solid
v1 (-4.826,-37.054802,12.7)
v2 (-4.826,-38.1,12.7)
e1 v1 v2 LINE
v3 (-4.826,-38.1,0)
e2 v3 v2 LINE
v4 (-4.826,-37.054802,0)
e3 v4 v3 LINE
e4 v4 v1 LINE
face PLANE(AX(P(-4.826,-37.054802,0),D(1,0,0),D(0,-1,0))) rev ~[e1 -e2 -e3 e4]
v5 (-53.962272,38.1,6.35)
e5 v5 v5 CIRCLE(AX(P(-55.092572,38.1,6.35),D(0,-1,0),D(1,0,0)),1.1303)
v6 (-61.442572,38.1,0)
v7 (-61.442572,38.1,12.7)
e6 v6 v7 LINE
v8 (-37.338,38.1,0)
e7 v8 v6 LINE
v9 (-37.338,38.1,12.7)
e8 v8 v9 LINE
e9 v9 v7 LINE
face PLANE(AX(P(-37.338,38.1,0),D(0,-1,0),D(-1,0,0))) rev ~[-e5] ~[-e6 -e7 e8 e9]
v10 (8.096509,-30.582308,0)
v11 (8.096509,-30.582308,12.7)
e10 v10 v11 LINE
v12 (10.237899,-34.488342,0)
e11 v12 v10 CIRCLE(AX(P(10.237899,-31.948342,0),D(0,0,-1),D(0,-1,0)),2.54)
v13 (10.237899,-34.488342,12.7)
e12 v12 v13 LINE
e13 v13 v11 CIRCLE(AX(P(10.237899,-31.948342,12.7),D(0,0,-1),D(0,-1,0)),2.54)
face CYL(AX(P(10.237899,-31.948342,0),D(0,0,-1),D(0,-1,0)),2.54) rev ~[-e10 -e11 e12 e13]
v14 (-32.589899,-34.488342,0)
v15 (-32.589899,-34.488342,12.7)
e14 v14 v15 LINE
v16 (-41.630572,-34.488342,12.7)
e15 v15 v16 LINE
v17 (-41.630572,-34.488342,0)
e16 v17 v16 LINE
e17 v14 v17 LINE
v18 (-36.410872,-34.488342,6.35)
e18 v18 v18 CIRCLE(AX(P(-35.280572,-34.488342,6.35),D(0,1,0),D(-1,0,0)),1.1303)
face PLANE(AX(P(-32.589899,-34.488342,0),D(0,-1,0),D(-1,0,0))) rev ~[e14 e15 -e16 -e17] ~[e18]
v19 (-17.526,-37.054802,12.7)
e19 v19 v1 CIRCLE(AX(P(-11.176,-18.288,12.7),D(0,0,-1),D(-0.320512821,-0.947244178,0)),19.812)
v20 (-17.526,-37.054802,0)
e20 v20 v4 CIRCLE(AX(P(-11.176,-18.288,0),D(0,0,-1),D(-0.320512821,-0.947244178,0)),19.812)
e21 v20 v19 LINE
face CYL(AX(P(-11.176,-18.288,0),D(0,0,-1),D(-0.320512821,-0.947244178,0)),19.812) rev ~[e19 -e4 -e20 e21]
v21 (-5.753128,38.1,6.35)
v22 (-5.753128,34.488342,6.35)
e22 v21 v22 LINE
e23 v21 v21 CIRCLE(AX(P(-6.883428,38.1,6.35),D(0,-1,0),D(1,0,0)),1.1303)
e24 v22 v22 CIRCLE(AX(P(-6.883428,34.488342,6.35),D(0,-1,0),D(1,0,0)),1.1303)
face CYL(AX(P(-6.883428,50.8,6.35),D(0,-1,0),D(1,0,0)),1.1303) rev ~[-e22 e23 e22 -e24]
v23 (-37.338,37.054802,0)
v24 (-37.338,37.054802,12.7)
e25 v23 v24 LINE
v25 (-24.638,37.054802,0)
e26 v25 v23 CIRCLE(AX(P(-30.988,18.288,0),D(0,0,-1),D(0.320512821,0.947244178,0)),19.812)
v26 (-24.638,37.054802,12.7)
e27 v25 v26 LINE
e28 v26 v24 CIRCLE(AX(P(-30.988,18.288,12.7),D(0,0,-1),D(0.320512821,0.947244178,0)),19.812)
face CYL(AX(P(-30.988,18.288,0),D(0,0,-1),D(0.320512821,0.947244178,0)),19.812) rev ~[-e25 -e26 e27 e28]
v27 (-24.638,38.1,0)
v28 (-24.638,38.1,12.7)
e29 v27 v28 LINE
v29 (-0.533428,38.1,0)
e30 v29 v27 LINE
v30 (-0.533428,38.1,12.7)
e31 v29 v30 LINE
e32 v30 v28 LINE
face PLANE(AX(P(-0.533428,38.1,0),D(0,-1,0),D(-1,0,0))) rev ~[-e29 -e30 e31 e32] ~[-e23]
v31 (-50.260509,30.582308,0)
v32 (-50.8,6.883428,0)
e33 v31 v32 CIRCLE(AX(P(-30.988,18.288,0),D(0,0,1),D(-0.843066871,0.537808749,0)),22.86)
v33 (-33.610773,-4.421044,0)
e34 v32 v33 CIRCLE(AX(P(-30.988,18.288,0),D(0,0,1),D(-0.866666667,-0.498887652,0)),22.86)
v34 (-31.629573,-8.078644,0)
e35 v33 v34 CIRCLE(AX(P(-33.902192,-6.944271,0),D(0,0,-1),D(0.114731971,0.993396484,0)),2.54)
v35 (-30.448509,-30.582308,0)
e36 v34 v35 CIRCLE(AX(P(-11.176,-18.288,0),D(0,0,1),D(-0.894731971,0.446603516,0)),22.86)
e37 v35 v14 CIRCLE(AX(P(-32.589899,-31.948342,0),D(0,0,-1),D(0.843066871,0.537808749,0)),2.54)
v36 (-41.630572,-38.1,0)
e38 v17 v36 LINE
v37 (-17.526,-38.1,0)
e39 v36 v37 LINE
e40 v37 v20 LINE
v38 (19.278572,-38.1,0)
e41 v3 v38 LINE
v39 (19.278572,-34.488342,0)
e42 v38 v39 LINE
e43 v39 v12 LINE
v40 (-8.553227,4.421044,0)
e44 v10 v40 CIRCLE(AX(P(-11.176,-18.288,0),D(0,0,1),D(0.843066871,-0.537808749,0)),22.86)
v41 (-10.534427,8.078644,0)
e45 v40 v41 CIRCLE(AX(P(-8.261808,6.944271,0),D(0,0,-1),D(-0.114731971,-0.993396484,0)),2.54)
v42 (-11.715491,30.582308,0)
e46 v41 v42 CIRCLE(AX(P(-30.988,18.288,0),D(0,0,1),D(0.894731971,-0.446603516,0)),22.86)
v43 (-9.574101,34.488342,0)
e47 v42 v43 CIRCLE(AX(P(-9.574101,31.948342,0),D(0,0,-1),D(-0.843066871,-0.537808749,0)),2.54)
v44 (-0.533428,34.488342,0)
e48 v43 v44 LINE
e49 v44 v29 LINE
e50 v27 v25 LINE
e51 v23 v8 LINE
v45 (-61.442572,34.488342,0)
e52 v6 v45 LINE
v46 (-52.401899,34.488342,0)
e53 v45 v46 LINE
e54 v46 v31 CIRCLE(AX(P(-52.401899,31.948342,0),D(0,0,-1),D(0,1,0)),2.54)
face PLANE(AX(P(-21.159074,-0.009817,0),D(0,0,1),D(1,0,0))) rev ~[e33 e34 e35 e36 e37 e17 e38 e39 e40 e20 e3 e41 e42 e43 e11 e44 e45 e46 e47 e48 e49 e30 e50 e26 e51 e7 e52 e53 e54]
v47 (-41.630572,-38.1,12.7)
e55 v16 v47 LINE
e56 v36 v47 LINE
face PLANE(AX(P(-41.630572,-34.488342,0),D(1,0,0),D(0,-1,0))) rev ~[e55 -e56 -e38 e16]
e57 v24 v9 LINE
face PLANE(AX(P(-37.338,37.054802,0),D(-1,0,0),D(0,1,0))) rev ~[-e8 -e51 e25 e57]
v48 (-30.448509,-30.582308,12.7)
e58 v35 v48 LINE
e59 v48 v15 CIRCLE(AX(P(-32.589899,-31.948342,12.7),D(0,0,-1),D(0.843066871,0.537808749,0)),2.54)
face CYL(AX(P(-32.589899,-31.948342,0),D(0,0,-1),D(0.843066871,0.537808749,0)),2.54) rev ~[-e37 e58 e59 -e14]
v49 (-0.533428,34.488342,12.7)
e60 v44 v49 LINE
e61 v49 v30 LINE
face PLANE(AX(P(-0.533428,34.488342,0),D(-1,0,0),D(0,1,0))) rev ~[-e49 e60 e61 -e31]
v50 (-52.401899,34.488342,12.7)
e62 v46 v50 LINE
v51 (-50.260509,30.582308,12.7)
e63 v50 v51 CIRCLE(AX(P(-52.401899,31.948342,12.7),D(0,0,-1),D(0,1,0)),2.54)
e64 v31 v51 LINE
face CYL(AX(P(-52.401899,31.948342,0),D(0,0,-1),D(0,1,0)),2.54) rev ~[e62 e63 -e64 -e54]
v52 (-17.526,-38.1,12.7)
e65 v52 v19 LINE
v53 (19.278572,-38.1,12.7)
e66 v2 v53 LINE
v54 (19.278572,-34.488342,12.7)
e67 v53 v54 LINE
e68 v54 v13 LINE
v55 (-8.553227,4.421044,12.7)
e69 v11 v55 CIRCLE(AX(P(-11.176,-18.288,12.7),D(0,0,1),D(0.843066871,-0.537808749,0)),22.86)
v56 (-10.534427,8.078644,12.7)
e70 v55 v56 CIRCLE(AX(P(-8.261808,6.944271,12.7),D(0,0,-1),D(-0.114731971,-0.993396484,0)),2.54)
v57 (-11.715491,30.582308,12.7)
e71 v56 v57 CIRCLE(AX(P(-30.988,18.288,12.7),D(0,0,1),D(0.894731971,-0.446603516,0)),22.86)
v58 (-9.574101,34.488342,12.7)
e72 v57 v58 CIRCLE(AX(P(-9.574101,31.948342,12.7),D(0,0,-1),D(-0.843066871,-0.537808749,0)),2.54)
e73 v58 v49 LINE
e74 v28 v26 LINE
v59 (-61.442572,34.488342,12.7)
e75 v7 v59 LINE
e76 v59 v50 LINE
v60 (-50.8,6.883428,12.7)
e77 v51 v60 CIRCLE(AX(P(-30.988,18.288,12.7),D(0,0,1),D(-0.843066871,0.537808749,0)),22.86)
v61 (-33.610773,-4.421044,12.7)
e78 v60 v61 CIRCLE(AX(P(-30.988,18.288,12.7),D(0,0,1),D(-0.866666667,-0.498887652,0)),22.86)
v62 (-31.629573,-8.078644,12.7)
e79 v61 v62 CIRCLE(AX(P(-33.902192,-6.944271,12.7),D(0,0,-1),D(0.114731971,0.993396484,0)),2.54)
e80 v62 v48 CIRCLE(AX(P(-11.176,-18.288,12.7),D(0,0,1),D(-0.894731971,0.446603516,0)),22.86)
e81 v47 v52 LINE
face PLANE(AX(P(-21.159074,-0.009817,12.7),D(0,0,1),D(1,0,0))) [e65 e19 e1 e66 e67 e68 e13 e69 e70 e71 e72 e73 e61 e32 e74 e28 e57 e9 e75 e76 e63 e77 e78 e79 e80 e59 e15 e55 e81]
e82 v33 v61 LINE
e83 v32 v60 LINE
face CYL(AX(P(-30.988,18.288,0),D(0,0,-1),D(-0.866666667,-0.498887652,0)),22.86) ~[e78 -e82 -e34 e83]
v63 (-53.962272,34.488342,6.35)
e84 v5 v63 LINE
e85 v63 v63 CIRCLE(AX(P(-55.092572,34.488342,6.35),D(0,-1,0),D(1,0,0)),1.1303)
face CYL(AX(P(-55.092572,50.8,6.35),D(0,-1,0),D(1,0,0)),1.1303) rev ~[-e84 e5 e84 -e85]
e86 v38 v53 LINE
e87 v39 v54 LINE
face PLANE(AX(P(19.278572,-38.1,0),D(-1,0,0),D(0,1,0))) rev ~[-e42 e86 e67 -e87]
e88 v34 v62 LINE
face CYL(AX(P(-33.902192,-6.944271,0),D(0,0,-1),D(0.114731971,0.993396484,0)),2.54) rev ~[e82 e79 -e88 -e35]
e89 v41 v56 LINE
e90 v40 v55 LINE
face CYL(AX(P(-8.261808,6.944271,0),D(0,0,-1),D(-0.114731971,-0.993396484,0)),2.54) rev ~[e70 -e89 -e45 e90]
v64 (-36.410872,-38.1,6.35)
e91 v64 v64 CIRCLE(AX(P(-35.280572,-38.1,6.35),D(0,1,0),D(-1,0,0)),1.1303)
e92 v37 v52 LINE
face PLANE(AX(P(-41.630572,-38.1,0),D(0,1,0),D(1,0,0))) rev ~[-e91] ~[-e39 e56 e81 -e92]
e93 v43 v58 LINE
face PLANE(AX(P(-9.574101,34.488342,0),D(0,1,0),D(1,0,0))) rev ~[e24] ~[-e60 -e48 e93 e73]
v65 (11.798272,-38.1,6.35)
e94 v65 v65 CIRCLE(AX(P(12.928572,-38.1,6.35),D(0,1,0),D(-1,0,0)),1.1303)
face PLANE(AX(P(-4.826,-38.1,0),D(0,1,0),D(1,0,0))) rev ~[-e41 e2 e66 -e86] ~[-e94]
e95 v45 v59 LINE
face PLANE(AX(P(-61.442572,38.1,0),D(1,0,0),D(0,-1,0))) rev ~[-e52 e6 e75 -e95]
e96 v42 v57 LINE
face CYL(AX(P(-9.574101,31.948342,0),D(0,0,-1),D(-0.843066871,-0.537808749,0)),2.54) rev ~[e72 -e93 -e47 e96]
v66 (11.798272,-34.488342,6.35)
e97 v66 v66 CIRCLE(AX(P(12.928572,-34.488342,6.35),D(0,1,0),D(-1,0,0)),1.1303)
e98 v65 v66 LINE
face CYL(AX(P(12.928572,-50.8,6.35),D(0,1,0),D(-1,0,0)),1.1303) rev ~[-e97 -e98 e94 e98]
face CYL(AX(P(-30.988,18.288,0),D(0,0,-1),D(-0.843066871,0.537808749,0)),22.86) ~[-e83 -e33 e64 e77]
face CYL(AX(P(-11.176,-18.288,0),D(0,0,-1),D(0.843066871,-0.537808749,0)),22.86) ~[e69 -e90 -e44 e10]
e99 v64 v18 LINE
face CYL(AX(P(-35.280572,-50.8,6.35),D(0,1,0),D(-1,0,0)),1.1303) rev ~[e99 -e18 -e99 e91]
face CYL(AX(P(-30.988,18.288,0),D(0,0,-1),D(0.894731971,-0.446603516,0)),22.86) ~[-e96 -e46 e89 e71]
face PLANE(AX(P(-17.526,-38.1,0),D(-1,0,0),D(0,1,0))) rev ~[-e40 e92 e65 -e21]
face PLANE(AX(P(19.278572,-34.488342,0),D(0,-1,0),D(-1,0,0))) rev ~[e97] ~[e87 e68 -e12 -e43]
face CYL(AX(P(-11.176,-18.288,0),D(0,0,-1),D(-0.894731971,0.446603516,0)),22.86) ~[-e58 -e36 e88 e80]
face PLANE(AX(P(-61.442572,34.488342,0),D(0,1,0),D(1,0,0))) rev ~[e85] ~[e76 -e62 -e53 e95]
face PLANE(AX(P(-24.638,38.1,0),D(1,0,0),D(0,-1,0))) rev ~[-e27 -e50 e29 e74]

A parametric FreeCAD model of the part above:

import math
import FreeCAD as App
import Part
import Sketcher

V = App.Vector
Q = App.Units.Quantity

doc = App.newDocument("Part")
params = doc.addObject("Spreadsheet::Sheet", "Params")
for row, (alias, value) in enumerate([
    ("sketch1_radius", "0.1 in"),
    ("sketch1_radius2", "0.9 in"),
    ("sketch1_radius3", "0.78 in"),
    ("pad1_length", "0.5 in"),
    ("sketch2_diameter", "0.089 in"),
    ("hole_diameter", "0.089 in"),
    ("hole_depth", "0.5 in"),
    ("sketch3_diameter", "0.089 in"),
    ("hole2_diameter", "0.089 in"),
    ("hole2_depth", "0.5 in"),
    ("sketch4_diameter", "0.089 in"),
    ("hole3_diameter", "0.089 in"),
    ("hole3_depth", "0.5 in"),
    ("sketch5_diameter", "0.089 in"),
    ("hole4_diameter", "0.089 in"),
    ("hole4_depth", "0.5 in"),
], start=1):
    params.set(f"A{row}", alias)
    params.set(f"B{row}", "=" + value)
    params.setAlias(f"B{row}", alias)

body = doc.addObject("PartDesign::Body", "Body")

sketch1 = doc.addObject("Sketcher::SketchObject", "Sketch")
body.addObject(sketch1)
sketch1.AttachmentSupport = (doc.XY_Plane, [""])
sketch1.MapMode = "FlatFace"
sketch1.addGeometry(Part.LineSegment(V(19.3, -38.1, 0), V(19.3, -34.5, 0)), False)
sketch1.addGeometry(Part.LineSegment(V(19.3, -34.5, 0), V(10.2, -34.5, 0)), False)
sketch1.addGeometry(Part.ArcOfCircle(Part.Circle(V(10.2, -31.9, 0), V(0, 0, 1), 2.5), math.radians(147), math.radians(270)), False)
sketch1.addGeometry(Part.ArcOfCircle(Part.Circle(V(-11.2, -18.3, 0), V(0, 0, 1), 22.9), math.radians(-33), math.radians(83)), False)
sketch1.addGeometry(Part.ArcOfCircle(Part.Circle(V(-8.3, 6.9, 0), V(0, 0, 1), 2.5), math.radians(153), math.radians(263)), False)
sketch1.addGeometry(Part.ArcOfCircle(Part.Circle(V(-31, 18.3, 0), V(0, 0, 1), 22.9), math.radians(-27), math.radians(33)), False)
sketch1.addGeometry(Part.ArcOfCircle(Part.Circle(V(-9.6, 31.9, 0), V(0, 0, 1), 2.5), math.radians(90), math.radians(213)), False)
sketch1.addGeometry(Part.LineSegment(V(-9.6, 34.5, 0), V(-0.5, 34.5, 0)), False)
sketch1.addGeometry(Part.LineSegment(V(-0.5, 34.5, 0), V(-0.5, 38.1, 0)), False)
sketch1.addGeometry(Part.LineSegment(V(-0.5, 38.1, 0), V(-24.6, 38.1, 0)), False)
sketch1.addGeometry(Part.LineSegment(V(-24.6, 38.1, 0), V(-24.6, 37.1, 0)), False)
sketch1.addGeometry(Part.ArcOfCircle(Part.Circle(V(-31, 18.3, 0), V(0, 0, 1), 19.8), math.radians(109), math.radians(431)), False)
sketch1.addGeometry(Part.LineSegment(V(-37.3, 37.1, 0), V(-37.3, 38.1, 0)), False)
sketch1.addGeometry(Part.LineSegment(V(-37.3, 38.1, 0), V(-61.4, 38.1, 0)), False)
sketch1.addGeometry(Part.LineSegment(V(-61.4, 38.1, 0), V(-61.4, 34.5, 0)), False)
sketch1.addGeometry(Part.LineSegment(V(-61.4, 34.5, 0), V(-52.4, 34.5, 0)), False)
sketch1.addGeometry(Part.ArcOfCircle(Part.Circle(V(-52.4, 31.9, 0), V(0, 0, 1), 2.5), math.radians(-33), math.radians(90)), False)
sketch1.addGeometry(Part.ArcOfCircle(Part.Circle(V(-31, 18.3, 0), V(0, 0, 1), 22.9), math.radians(147), math.radians(210)), False)
sketch1.addGeometry(Part.ArcOfCircle(Part.Circle(V(-31, 18.3, 0), V(0, 0, 1), 22.9), math.radians(-150), math.radians(-97)), False)
sketch1.addGeometry(Part.ArcOfCircle(Part.Circle(V(-33.9, -6.9, 0), V(0, 0, 1), 2.5), math.radians(-27), math.radians(83)), False)
sketch1.addGeometry(Part.ArcOfCircle(Part.Circle(V(-11.2, -18.3, 0), V(0, 0, 1), 22.9), math.radians(153), math.radians(213)), False)
sketch1.addGeometry(Part.ArcOfCircle(Part.Circle(V(-32.6, -31.9, 0), V(0, 0, 1), 2.5), math.radians(-90), math.radians(33)), False)
sketch1.addGeometry(Part.LineSegment(V(-32.6, -34.5, 0), V(-41.6, -34.5, 0)), False)
sketch1.addGeometry(Part.LineSegment(V(-41.6, -34.5, 0), V(-41.6, -38.1, 0)), False)
sketch1.addGeometry(Part.LineSegment(V(-41.6, -38.1, 0), V(-17.5, -38.1, 0)), False)
sketch1.addGeometry(Part.LineSegment(V(-17.5, -38.1, 0), V(-17.5, -37.1, 0)), False)
sketch1.addGeometry(Part.ArcOfCircle(Part.Circle(V(-11.2, -18.3, 0), V(0, 0, 1), 19.8), math.radians(-71), math.radians(251)), False)
sketch1.addGeometry(Part.LineSegment(V(-4.8, -37.1, 0), V(-4.8, -38.1, 0)), False)
sketch1.addGeometry(Part.LineSegment(V(-4.8, -38.1, 0), V(19.3, -38.1, 0)), False)
sketch1.addConstraint(Sketcher.Constraint("Coincident", 0, 2, 1, 1))
sketch1.addConstraint(Sketcher.Constraint("Tangent", 1, 2, 2, 2))
sketch1.addConstraint(Sketcher.Constraint("Tangent", 2, 1, 3, 1))
sketch1.addConstraint(Sketcher.Constraint("Tangent", 3, 2, 4, 2))
sketch1.addConstraint(Sketcher.Constraint("Tangent", 4, 1, 5, 1))
sketch1.addConstraint(Sketcher.Constraint("Tangent", 5, 2, 6, 2))
sketch1.addConstraint(Sketcher.Constraint("Tangent", 6, 1, 7, 1))
sketch1.addConstraint(Sketcher.Constraint("Coincident", 7, 2, 8, 1))
sketch1.addConstraint(Sketcher.Constraint("Coincident", 8, 2, 9, 1))
sketch1.addConstraint(Sketcher.Constraint("Coincident", 9, 2, 10, 1))
sketch1.addConstraint(Sketcher.Constraint("Coincident", 10, 2, 11, 2))
sketch1.addConstraint(Sketcher.Constraint("Coincident", 11, 1, 12, 1))
sketch1.addConstraint(Sketcher.Constraint("Coincident", 12, 2, 13, 1))
sketch1.addConstraint(Sketcher.Constraint("Coincident", 13, 2, 14, 1))
sketch1.addConstraint(Sketcher.Constraint("Coincident", 14, 2, 15, 1))
sketch1.addConstraint(Sketcher.Constraint("Tangent", 15, 2, 16, 2))
sketch1.addConstraint(Sketcher.Constraint("Tangent", 16, 1, 17, 1))
sketch1.addConstraint(Sketcher.Constraint("Tangent", 17, 2, 18, 1))
sketch1.addConstraint(Sketcher.Constraint("Tangent", 18, 2, 19, 2))
sketch1.addConstraint(Sketcher.Constraint("Tangent", 19, 1, 20, 1))
sketch1.addConstraint(Sketcher.Constraint("Tangent", 20, 2, 21, 2))
sketch1.addConstraint(Sketcher.Constraint("Tangent", 21, 1, 22, 1))
sketch1.addConstraint(Sketcher.Constraint("Coincident", 22, 2, 23, 1))
sketch1.addConstraint(Sketcher.Constraint("Coincident", 23, 2, 24, 1))
sketch1.addConstraint(Sketcher.Constraint("Coincident", 24, 2, 25, 1))
sketch1.addConstraint(Sketcher.Constraint("Coincident", 25, 2, 26, 2))
sketch1.addConstraint(Sketcher.Constraint("Coincident", 26, 1, 27, 1))
sketch1.addConstraint(Sketcher.Constraint("Coincident", 27, 2, 28, 1))
sketch1.addConstraint(Sketcher.Constraint("Coincident", 28, 2, 0, 1))
sketch1.addConstraint(Sketcher.Constraint("Vertical", 0))
sketch1.addConstraint(Sketcher.Constraint("Horizontal", 1))
sketch1.addConstraint(Sketcher.Constraint("Horizontal", 7))
sketch1.addConstraint(Sketcher.Constraint("Vertical", 8))
sketch1.addConstraint(Sketcher.Constraint("Horizontal", 9))
sketch1.addConstraint(Sketcher.Constraint("Vertical", 10))
sketch1.addConstraint(Sketcher.Constraint("Vertical", 12))
sketch1.addConstraint(Sketcher.Constraint("Horizontal", 13))
sketch1.addConstraint(Sketcher.Constraint("Vertical", 14))
sketch1.addConstraint(Sketcher.Constraint("Horizontal", 15))
sketch1.addConstraint(Sketcher.Constraint("Horizontal", 22))
sketch1.addConstraint(Sketcher.Constraint("Vertical", 23))
sketch1.addConstraint(Sketcher.Constraint("Horizontal", 24))
sketch1.addConstraint(Sketcher.Constraint("Vertical", 25))
sketch1.addConstraint(Sketcher.Constraint("Vertical", 27))
sketch1.addConstraint(Sketcher.Constraint("Horizontal", 28))
sketch1.addConstraint(Sketcher.Constraint("Coincident", 11, 3, 5, 3))
sketch1.addConstraint(Sketcher.Constraint("Coincident", 17, 3, 5, 3))
sketch1.addConstraint(Sketcher.Constraint("Coincident", 20, 3, 3, 3))
sketch1.addConstraint(Sketcher.Constraint("Coincident", 26, 3, 3, 3))
sketch1.addConstraint(Sketcher.Constraint("Equal", 2, 4))
sketch1.addConstraint(Sketcher.Constraint("Equal", 3, 5))
sketch1.addConstraint(Sketcher.Constraint("Equal", 4, 6))
sketch1.addConstraint(Sketcher.Constraint("Equal", 6, 16))
sketch1.addConstraint(Sketcher.Constraint("Equal", 5, 17))
sketch1.addConstraint(Sketcher.Constraint("Equal", 17, 18))
sketch1.addConstraint(Sketcher.Constraint("Equal", 16, 19))
sketch1.addConstraint(Sketcher.Constraint("Equal", 18, 20))
sketch1.addConstraint(Sketcher.Constraint("Equal", 19, 21))
sketch1.addConstraint(Sketcher.Constraint("Equal", 11, 26))
sketch1.addConstraint(Sketcher.Constraint("Horizontal", 6, 3, 16, 3))
sketch1.addConstraint(Sketcher.Constraint("Horizontal", 2, 3, 21, 3))
sketch1.addConstraint(Sketcher.Constraint("Horizontal", 10, 2, 11, 1))
sketch1.addConstraint(Sketcher.Constraint("Horizontal", 9, 2, 12, 2))
sketch1.addConstraint(Sketcher.Constraint("Horizontal", 25, 2, 26, 1))
sketch1.addConstraint(Sketcher.Constraint("Horizontal", 24, 2, 27, 2))
sketch1.addConstraint(Sketcher.Constraint("Equal", 1, 7))
sketch1.addConstraint(Sketcher.Constraint("Equal", 9, 13))
sketch1.addConstraint(Sketcher.Constraint("Equal", 15, 22))
sketch1.addConstraint(Sketcher.Constraint("Equal", 13, 24))
sketch1.addConstraint(Sketcher.Constraint("Equal", 0, 8))
sketch1.addConstraint(Sketcher.Constraint("Equal", 12, 25))
sketch1.addConstraint(Sketcher.Constraint("Radius", 2, Q("0.1 in")))
sketch1.addConstraint(Sketcher.Constraint("Radius", 3, Q("0.9 in")))
sketch1.addConstraint(Sketcher.Constraint("Radius", 11, Q("0.78 in")))
sketch1.addConstraint(Sketcher.Constraint("DistanceX", 17, 2, -1, 1, Q("2 in")))
sketch1.addConstraint(Sketcher.Constraint("DistanceY", -1, 1, 8, 2, Q("1.5 in")))
sketch1.addConstraint(Sketcher.Constraint("DistanceY", 23, 2, -1, 1, Q("1.5 in")))
sketch1.addConstraint(Sketcher.Constraint("DistanceX", 11, 1, 10, 2, Q("0.5 in")))
sketch1.addConstraint(Sketcher.Constraint("DistanceX", 3, 3, -1, 1, Q("0.44 in")))
sketch1.addConstraint(Sketcher.Constraint("DistanceY", 3, 3, -1, 1, Q("0.72 in")))
sketch1.addConstraint(Sketcher.Constraint("DistanceX", 5, 3, -1, 1, Q("1.22 in")))
sketch1.addConstraint(Sketcher.Constraint("DistanceX", 9, 2, 9, 1, Q("24.104572 mm")))
sketch1.addConstraint(Sketcher.Constraint("DistanceX", -1, 1, 2, 3, Q("10.237899 mm")))
sketch1.setExpression("Constraints[71]", "Params.sketch1_radius")
sketch1.setExpression("Constraints[72]", "Params.sketch1_radius2")
sketch1.setExpression("Constraints[73]", "Params.sketch1_radius3")
pad1 = doc.addObject("PartDesign::Pad", "Pad")
body.addObject(pad1)
pad1.Profile = sketch1
pad1.setExpression("Length", "Params.pad1_length")

sketch2 = doc.addObject("Sketcher::SketchObject", "Sketch001")
body.addObject(sketch2)
sketch2.AttachmentSupport = (doc.XZ_Plane, [""])
sketch2.MapMode = "FlatFace"
sketch2.AttachmentOffset = App.Placement(V(0, 0, -1.5 * 25.4), App.Rotation())
sketch2.addGeometry(Part.Circle(V(-55.1, 6.3, 0), V(0, 0, 1), 1.1), False)
sketch2.addConstraint(Sketcher.Constraint("Diameter", 0, Q("0.089 in")))
sketch2.addConstraint(Sketcher.Constraint("DistanceY", -1, 1, 0, 3, Q("0.25 in")))
sketch2.addConstraint(Sketcher.Constraint("DistanceX", 0, 3, -1, 1, Q("55.092572 mm")))
sketch2.setExpression("Constraints[0]", "Params.sketch2_diameter")
doc.recompute()
hole = doc.addObject("PartDesign::Hole", "Hole")
body.addObject(hole)
hole.Profile = sketch2
hole.ThreadType = "None"
hole.setExpression("Diameter", "Params.hole_diameter")
hole.DepthType = "Dimension"
hole.setExpression("Depth", "Params.hole_depth")
hole.DrillPoint = "Angled"
hole.DrillPointAngle = 118
hole.Reversed = True

sketch3 = doc.addObject("Sketcher::SketchObject", "Sketch002")
body.addObject(sketch3)
sketch3.AttachmentSupport = (doc.XZ_Plane, [""])
sketch3.MapMode = "FlatFace"
sketch3.AttachmentOffset = App.Placement(V(0, 0, -1.5 * 25.4), App.Rotation())
sketch3.addGeometry(Part.Circle(V(-6.9, 6.3, 0), V(0, 0, 1), 1.1), False)
sketch3.addConstraint(Sketcher.Constraint("Diameter", 0, Q("0.089 in")))
sketch3.addConstraint(Sketcher.Constraint("DistanceY", -1, 1, 0, 3, Q("0.25 in")))
sketch3.addConstraint(Sketcher.Constraint("DistanceX", 0, 3, -1, 1, Q("6.883428 mm")))
sketch3.setExpression("Constraints[0]", "Params.sketch3_diameter")
doc.recompute()
hole2 = doc.addObject("PartDesign::Hole", "Hole001")
body.addObject(hole2)
hole2.Profile = sketch3
hole2.ThreadType = "None"
hole2.setExpression("Diameter", "Params.hole2_diameter")
hole2.DepthType = "Dimension"
hole2.setExpression("Depth", "Params.hole2_depth")
hole2.DrillPoint = "Angled"
hole2.DrillPointAngle = 118
hole2.Reversed = True

sketch4 = doc.addObject("Sketcher::SketchObject", "Sketch003")
body.addObject(sketch4)
sketch4.AttachmentSupport = (doc.XZ_Plane, [""])
sketch4.MapMode = "FlatFace"
sketch4.AttachmentOffset = App.Placement(V(0, 0, 1.5 * 25.4), App.Rotation())
sketch4.addGeometry(Part.Circle(V(-35.3, 6.3, 0), V(0, 0, 1), 1.1), False)
sketch4.addConstraint(Sketcher.Constraint("Diameter", 0, Q("0.089 in")))
sketch4.addConstraint(Sketcher.Constraint("DistanceY", -1, 1, 0, 3, Q("0.25 in")))
sketch4.addConstraint(Sketcher.Constraint("DistanceX", 0, 3, -1, 1, Q("35.280572 mm")))
sketch4.setExpression("Constraints[0]", "Params.sketch4_diameter")
doc.recompute()
hole3 = doc.addObject("PartDesign::Hole", "Hole002")
body.addObject(hole3)
hole3.Profile = sketch4
hole3.ThreadType = "None"
hole3.setExpression("Diameter", "Params.hole3_diameter")
hole3.DepthType = "Dimension"
hole3.setExpression("Depth", "Params.hole3_depth")
hole3.DrillPoint = "Angled"
hole3.DrillPointAngle = 118

sketch5 = doc.addObject("Sketcher::SketchObject", "Sketch004")
body.addObject(sketch5)
sketch5.AttachmentSupport = (doc.XZ_Plane, [""])
sketch5.MapMode = "FlatFace"
sketch5.AttachmentOffset = App.Placement(V(0, 0, 1.5 * 25.4), App.Rotation())
sketch5.addGeometry(Part.Circle(V(12.9, 6.3, 0), V(0, 0, 1), 1.1), False)
sketch5.addConstraint(Sketcher.Constraint("Diameter", 0, Q("0.089 in")))
sketch5.addConstraint(Sketcher.Constraint("DistanceY", -1, 1, 0, 3, Q("0.25 in")))
sketch5.addConstraint(Sketcher.Constraint("DistanceX", -1, 1, 0, 3, Q("12.928572 mm")))
sketch5.setExpression("Constraints[0]", "Params.sketch5_diameter")
doc.recompute()
hole4 = doc.addObject("PartDesign::Hole", "Hole003")
body.addObject(hole4)
hole4.Profile = sketch5
hole4.ThreadType = "None"
hole4.setExpression("Diameter", "Params.hole4_diameter")
hole4.DepthType = "Dimension"
hole4.setExpression("Depth", "Params.hole4_depth")
hole4.DrillPoint = "Angled"
hole4.DrillPointAngle = 118

doc.recompute()
